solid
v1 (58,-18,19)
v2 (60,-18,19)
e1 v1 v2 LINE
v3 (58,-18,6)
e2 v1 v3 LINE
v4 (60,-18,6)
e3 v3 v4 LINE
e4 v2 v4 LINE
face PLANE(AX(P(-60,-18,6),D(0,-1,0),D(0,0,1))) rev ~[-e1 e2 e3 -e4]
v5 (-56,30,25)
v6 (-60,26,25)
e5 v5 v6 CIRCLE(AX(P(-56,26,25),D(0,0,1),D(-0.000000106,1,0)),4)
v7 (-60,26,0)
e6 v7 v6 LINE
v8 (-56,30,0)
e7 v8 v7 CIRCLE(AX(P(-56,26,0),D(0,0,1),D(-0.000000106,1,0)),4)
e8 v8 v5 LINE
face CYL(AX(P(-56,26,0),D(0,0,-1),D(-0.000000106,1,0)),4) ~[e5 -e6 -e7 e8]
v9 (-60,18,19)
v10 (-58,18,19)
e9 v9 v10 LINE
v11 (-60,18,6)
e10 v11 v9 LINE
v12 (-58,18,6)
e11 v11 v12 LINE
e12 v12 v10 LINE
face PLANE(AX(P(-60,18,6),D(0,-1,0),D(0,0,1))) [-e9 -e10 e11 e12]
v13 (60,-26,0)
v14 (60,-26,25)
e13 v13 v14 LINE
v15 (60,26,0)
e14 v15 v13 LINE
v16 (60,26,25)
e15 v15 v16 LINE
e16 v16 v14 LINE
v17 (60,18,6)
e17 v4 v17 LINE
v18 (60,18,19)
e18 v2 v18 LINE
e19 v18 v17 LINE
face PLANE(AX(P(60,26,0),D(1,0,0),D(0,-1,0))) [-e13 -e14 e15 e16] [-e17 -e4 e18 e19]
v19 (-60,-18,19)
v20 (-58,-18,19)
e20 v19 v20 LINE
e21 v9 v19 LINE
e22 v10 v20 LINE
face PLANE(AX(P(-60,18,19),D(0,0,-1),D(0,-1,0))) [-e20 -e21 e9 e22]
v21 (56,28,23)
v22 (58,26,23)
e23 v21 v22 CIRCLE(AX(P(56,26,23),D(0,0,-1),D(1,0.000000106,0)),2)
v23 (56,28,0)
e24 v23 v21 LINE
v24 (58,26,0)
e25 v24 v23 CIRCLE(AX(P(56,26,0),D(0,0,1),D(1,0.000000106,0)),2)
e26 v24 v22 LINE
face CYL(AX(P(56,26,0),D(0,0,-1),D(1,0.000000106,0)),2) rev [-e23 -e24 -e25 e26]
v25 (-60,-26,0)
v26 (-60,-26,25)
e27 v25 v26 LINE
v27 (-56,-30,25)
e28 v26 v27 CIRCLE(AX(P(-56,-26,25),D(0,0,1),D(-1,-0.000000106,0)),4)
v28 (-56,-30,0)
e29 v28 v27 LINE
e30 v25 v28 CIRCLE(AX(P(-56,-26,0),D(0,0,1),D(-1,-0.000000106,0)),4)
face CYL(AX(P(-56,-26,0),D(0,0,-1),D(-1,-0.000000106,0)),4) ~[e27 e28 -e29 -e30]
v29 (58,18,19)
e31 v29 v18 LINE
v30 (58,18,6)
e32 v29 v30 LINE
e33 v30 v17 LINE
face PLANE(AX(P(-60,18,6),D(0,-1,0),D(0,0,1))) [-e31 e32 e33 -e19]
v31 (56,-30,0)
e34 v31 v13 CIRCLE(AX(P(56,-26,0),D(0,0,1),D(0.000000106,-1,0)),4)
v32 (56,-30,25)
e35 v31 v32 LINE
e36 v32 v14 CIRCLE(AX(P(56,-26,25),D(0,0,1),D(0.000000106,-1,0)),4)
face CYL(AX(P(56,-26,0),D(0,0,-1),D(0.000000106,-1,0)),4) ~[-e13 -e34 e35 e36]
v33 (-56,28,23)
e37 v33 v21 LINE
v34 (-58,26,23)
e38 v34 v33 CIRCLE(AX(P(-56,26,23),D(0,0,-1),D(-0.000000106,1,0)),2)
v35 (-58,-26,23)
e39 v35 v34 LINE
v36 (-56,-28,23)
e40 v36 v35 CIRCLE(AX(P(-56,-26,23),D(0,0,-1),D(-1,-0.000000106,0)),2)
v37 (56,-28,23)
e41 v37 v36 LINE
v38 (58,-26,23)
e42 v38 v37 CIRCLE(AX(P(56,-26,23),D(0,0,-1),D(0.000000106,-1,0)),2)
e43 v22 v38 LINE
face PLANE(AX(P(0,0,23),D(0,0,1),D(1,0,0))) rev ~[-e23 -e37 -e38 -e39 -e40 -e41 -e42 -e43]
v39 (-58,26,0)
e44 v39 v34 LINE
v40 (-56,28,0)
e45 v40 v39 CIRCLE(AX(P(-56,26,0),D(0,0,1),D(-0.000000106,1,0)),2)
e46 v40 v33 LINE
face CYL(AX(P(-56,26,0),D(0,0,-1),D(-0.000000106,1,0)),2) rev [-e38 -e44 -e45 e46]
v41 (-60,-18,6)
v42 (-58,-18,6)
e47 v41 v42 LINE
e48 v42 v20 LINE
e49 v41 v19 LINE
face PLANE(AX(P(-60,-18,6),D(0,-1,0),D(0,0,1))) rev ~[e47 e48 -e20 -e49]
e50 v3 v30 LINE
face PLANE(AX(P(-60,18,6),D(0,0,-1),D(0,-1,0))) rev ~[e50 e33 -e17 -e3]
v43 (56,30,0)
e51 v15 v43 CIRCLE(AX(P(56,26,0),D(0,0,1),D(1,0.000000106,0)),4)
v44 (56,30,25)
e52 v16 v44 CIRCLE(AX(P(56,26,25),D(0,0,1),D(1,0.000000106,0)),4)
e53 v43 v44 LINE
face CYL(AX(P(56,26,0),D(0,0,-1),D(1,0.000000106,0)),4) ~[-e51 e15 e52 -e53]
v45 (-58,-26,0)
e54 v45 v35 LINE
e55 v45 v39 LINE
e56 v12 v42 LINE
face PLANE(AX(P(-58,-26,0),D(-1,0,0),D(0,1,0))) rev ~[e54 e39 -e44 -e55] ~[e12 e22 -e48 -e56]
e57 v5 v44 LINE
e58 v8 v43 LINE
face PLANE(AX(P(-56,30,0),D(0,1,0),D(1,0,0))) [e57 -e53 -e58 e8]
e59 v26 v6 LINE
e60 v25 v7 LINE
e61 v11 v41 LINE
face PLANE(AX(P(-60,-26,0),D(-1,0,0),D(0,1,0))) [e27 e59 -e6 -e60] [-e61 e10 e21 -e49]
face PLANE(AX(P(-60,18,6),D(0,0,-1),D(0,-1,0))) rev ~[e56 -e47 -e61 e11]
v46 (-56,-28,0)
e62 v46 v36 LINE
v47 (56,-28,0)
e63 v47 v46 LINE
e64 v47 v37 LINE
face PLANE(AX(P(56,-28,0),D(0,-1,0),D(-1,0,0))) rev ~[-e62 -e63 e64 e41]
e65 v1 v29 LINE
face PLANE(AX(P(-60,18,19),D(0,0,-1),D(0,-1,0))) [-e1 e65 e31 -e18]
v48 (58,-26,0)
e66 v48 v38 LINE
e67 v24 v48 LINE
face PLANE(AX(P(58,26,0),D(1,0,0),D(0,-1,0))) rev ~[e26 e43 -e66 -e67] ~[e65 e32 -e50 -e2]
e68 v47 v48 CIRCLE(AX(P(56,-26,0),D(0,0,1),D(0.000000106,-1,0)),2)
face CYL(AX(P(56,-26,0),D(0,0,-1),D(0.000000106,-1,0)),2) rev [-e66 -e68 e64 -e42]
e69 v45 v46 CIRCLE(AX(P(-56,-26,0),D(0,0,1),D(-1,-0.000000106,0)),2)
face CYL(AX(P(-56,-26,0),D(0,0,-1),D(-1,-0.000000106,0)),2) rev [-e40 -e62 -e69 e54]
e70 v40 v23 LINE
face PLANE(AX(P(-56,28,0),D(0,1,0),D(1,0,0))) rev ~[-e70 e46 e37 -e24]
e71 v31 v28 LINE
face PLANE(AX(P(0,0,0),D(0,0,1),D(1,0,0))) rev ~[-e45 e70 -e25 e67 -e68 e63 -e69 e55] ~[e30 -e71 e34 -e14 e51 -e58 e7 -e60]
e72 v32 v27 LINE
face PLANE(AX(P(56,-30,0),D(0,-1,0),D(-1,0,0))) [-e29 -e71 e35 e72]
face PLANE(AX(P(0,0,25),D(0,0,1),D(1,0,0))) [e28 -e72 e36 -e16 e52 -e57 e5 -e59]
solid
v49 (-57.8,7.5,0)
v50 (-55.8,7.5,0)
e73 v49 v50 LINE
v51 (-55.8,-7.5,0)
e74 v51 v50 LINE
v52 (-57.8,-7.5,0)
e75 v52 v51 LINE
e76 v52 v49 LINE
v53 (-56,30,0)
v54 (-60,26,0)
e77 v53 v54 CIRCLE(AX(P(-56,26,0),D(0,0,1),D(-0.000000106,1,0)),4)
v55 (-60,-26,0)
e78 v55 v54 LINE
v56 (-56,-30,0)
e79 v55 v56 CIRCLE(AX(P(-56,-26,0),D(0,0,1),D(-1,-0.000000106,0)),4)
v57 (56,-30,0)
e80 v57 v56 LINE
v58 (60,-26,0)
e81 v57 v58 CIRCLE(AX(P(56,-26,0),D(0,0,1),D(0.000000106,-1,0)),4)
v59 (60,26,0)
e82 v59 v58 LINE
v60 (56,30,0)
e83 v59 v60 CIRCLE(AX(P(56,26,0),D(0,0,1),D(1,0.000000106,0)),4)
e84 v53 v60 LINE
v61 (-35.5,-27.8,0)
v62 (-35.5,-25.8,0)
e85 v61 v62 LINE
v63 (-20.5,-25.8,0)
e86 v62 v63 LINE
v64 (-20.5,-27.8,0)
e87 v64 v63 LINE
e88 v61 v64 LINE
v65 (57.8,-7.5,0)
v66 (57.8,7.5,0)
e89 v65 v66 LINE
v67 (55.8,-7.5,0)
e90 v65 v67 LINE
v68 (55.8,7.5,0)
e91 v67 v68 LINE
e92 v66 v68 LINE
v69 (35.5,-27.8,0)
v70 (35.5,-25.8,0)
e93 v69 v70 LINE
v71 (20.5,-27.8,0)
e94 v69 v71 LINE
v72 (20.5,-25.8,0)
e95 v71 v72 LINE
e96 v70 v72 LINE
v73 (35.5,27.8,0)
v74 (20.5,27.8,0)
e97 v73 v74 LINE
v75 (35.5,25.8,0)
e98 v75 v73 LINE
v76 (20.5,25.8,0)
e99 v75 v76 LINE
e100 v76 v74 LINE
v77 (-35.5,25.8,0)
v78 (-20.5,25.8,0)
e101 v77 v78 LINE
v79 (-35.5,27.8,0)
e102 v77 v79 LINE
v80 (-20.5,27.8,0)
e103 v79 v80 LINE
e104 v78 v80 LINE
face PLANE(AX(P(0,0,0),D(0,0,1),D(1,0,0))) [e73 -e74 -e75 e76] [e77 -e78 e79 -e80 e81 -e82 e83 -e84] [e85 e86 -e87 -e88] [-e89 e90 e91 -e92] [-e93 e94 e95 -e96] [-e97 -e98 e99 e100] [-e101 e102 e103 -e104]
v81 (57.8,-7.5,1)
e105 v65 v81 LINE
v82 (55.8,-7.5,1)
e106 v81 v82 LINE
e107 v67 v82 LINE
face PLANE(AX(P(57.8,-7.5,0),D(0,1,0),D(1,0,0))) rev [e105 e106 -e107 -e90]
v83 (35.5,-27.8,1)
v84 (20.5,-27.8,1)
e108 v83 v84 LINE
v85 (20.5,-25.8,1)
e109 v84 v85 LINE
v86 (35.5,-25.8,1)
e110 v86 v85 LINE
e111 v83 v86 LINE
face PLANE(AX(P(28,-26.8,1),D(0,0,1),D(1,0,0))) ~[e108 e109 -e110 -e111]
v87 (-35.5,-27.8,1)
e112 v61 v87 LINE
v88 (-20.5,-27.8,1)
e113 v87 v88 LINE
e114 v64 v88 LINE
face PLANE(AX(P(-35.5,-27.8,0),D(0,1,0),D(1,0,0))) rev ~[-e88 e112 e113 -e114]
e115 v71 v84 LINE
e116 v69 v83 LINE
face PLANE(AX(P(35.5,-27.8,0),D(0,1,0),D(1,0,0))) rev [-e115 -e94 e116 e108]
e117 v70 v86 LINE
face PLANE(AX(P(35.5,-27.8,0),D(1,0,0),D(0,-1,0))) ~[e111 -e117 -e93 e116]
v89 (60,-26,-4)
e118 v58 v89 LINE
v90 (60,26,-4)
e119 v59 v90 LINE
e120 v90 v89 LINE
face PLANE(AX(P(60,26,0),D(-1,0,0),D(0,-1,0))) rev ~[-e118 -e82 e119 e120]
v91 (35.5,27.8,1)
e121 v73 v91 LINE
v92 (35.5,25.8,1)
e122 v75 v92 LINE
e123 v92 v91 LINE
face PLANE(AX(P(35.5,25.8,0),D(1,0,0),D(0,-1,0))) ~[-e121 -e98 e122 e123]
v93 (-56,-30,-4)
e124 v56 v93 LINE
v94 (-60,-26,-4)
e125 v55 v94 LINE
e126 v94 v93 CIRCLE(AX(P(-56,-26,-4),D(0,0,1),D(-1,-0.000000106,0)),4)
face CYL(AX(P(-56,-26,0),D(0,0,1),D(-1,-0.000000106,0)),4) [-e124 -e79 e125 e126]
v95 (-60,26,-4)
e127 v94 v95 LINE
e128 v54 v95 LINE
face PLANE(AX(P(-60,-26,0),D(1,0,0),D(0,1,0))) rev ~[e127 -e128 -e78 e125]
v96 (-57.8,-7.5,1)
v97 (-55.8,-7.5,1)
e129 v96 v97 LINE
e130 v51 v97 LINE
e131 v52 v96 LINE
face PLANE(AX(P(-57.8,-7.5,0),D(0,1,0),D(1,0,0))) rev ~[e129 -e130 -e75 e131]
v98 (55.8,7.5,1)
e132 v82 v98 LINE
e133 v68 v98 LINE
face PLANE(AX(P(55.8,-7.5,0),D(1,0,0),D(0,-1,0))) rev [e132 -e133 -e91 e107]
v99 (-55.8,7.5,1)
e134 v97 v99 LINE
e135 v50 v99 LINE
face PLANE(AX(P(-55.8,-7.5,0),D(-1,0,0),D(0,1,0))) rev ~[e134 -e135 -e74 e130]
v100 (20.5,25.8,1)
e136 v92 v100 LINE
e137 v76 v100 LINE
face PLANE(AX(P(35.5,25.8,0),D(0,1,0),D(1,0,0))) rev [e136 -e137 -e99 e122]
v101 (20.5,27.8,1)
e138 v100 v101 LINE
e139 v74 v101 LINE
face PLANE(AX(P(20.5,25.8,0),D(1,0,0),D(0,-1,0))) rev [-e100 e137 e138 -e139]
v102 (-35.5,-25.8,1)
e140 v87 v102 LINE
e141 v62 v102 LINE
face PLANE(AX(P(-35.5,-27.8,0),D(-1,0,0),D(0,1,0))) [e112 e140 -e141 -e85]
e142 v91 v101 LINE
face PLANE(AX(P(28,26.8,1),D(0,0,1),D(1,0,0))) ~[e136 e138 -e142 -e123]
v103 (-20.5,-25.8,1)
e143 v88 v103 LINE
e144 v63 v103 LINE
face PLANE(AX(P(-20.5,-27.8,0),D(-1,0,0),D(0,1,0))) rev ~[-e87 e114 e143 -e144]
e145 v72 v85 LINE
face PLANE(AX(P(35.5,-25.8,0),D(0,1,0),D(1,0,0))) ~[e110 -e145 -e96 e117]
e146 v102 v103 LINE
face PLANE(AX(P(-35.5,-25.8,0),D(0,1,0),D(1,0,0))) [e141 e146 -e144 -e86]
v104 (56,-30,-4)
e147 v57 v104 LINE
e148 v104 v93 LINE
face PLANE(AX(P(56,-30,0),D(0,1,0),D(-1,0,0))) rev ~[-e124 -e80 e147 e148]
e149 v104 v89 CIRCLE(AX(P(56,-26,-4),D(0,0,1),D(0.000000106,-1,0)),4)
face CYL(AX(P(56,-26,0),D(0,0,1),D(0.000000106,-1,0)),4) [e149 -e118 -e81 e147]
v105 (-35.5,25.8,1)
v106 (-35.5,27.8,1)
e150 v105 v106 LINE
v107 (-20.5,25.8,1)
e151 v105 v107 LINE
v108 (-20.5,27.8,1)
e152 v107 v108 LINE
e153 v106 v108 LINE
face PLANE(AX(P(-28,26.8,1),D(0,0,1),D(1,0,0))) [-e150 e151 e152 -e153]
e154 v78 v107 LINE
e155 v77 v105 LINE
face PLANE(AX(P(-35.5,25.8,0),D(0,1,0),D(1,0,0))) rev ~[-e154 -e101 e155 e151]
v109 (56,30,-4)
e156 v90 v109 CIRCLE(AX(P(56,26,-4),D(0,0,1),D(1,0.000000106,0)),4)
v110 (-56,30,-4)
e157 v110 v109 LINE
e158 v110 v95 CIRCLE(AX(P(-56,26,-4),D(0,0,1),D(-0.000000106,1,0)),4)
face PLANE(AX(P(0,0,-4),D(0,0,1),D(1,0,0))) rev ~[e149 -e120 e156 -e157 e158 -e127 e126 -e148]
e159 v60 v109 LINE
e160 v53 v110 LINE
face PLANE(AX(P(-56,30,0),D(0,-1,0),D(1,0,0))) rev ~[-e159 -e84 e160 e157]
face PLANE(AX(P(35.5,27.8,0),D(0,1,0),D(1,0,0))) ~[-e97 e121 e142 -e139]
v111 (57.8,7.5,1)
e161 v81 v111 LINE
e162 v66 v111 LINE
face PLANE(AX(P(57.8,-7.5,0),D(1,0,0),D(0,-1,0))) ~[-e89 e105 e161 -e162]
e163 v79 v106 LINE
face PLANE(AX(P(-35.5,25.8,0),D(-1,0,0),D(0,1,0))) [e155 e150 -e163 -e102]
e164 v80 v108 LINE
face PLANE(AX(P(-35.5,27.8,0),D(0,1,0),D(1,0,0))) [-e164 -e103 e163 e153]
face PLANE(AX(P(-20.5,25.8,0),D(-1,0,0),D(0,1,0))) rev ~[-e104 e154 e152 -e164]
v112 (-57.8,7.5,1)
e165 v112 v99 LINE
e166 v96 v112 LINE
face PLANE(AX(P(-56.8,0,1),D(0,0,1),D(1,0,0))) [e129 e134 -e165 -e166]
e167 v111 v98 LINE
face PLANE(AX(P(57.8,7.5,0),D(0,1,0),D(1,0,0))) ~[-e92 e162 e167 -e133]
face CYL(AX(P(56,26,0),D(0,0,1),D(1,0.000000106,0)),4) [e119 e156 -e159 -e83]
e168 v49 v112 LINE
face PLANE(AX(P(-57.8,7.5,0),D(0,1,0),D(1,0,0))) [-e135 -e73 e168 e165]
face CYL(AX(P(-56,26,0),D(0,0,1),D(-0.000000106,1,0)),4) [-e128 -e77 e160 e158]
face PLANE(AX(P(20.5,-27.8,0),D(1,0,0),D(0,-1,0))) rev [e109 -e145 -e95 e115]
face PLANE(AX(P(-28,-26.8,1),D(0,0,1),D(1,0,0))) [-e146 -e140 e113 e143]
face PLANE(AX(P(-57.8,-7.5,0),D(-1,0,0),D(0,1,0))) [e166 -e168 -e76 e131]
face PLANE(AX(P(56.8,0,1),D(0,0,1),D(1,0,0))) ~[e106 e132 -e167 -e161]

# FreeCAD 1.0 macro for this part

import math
import FreeCAD as App
import Part
import Sketcher
from FreeCAD import Vector
Q = App.Units.Quantity


def faces_at(feature, points):
    """Names of the faces that lie closest to the given points."""
    faces = feature.Shape.Faces
    near = lambda p: min(range(len(faces)), key=lambda i: faces[i].distToShape(Part.Vertex(*p))[0])
    return sorted({f"Face{near(p) + 1}" for p in points})


def add_polygon(sketch, points):
    """Adds a closed chain of lines whose ends are joined by coincident constraints."""
    first, n = sketch.GeometryCount, len(points)
    for a, b in zip(points, points[1:] + points[:1]):
        sketch.addGeometry(Part.LineSegment(App.Vector(*a, 0), App.Vector(*b, 0)), False)
    for i in range(n):
        sketch.addConstraint(Sketcher.Constraint("Coincident", first + i, 2, first + (i + 1) % n, 1))

doc = App.newDocument("Part")
body = doc.addObject("PartDesign::Body", "Body")

# Sketch on XY plane
sketch1 = body.newObject("Sketcher::SketchObject", "Sketch")
sketch1.AttachmentSupport = (doc.getObject("XY_Plane"), [""])
sketch1.MapMode = "FlatFace"
sketch1.addGeometry([
    Part.ArcOfCircle(Part.Circle(Vector(-56, 26, 0), Vector(0, 0, 1), 4), math.radians(90), math.radians(180)),  # 0
    Part.LineSegment(Vector(-60, 26, 0), Vector(-60, -26, 0)),  # 1
    Part.ArcOfCircle(Part.Circle(Vector(-56, -26, 0), Vector(0, 0, 1), 4), math.radians(-180), math.radians(-90)),  # 2
    Part.LineSegment(Vector(-56, -30, 0), Vector(56, -30, 0)),  # 3
    Part.ArcOfCircle(Part.Circle(Vector(56, -26, 0), Vector(0, 0, 1), 4), math.radians(-90), math.radians(0)),  # 4
    Part.LineSegment(Vector(60, -26, 0), Vector(60, 26, 0)),  # 5
    Part.ArcOfCircle(Part.Circle(Vector(56, 26, 0), Vector(0, 0, 1), 4), math.radians(0), math.radians(90)),  # 6
    Part.LineSegment(Vector(56, 30, 0), Vector(-56, 30, 0)),  # 7
], False)
sketch1.addConstraint([
    Sketcher.Constraint("Tangent", 0, 2, 1, 1),
    Sketcher.Constraint("Tangent", 1, 2, 2, 1),
    Sketcher.Constraint("Tangent", 2, 2, 3, 1),
    Sketcher.Constraint("Tangent", 3, 2, 4, 1),
    Sketcher.Constraint("Tangent", 4, 2, 5, 1),
    Sketcher.Constraint("Tangent", 5, 2, 6, 1),
    Sketcher.Constraint("Tangent", 6, 2, 7, 1),
    Sketcher.Constraint("Tangent", 7, 2, 0, 1),
    Sketcher.Constraint("Vertical", 1),
    Sketcher.Constraint("Horizontal", 3),
    Sketcher.Constraint("Vertical", 5),
    Sketcher.Constraint("Horizontal", 7),
    Sketcher.Constraint("Equal", 0, 2),
    Sketcher.Constraint("Equal", 2, 4),
    Sketcher.Constraint("Equal", 4, 6),
    Sketcher.Constraint("Symmetric", 0, 3, 4, 3, -1, 1),
    Sketcher.Constraint("Radius", 0, Q("4 mm")),
    Sketcher.Constraint("DistanceX", 3, 1, 3, 2, Q("112 mm")),
    Sketcher.Constraint("DistanceY", 1, 2, 1, 1, Q("52 mm")),
])
pad1 = body.newObject("PartDesign::Pad", "Pad")
pad1.Profile = sketch1
pad1.Length = 25
doc.recompute()

thickness = body.newObject("PartDesign::Thickness", "Thickness")
thickness.Base = (pad1, faces_at(pad1, [(0, 0, 0)]))
thickness.Value = 2
thickness.Reversed = True
thickness.Join = "Arc"

# Sketch on YZ plane
sketch2 = body.newObject("Sketcher::SketchObject", "Sketch001")
sketch2.AttachmentSupport = (doc.getObject("YZ_Plane"), [""])
sketch2.MapMode = "FlatFace"
sketch2.AttachmentOffset = App.Placement(Vector(0, 0, -60), App.Rotation())
add_polygon(sketch2, [(18, 19), (18, 6), (-18, 6), (-18, 19)])  # lines 0-3
sketch2.addConstraint([
    Sketcher.Constraint("Vertical", 0),
    Sketcher.Constraint("Horizontal", 1),
    Sketcher.Constraint("Vertical", 2),
    Sketcher.Constraint("Horizontal", 3),
    Sketcher.Constraint("DistanceX", 1, 2, 1, 1, Q("36 mm")),
    Sketcher.Constraint("DistanceY", 0, 2, 0, 1, Q("13 mm")),
    Sketcher.Constraint("DistanceX", -1, 1, 0, 2, Q("18 mm")),
    Sketcher.Constraint("DistanceY", -1, 1, 0, 2, Q("6 mm")),
])
pocket1 = body.newObject("PartDesign::Pocket", "Pocket")
pocket1.Profile = sketch2
pocket1.Type = "ThroughAll"
pocket1.Reversed = True
body2 = doc.addObject("PartDesign::Body", "Body001")

# Sketch on XY plane
sketch3 = body2.newObject("Sketcher::SketchObject", "Sketch002")
sketch3.AttachmentSupport = (doc.getObject("XY_Plane001"), [""])
sketch3.MapMode = "FlatFace"
sketch3.addGeometry([
    Part.ArcOfCircle(Part.Circle(Vector(-56, 26, 0), Vector(0, 0, 1), 4), math.radians(90), math.radians(180)),  # 0
    Part.LineSegment(Vector(-60, 26, 0), Vector(-60, -26, 0)),  # 1
    Part.ArcOfCircle(Part.Circle(Vector(-56, -26, 0), Vector(0, 0, 1), 4), math.radians(-180), math.radians(-90)),  # 2
    Part.LineSegment(Vector(-56, -30, 0), Vector(56, -30, 0)),  # 3
    Part.ArcOfCircle(Part.Circle(Vector(56, -26, 0), Vector(0, 0, 1), 4), math.radians(-90), math.radians(0)),  # 4
    Part.LineSegment(Vector(60, -26, 0), Vector(60, 26, 0)),  # 5
    Part.ArcOfCircle(Part.Circle(Vector(56, 26, 0), Vector(0, 0, 1), 4), math.radians(0), math.radians(90)),  # 6
    Part.LineSegment(Vector(56, 30, 0), Vector(-56, 30, 0)),  # 7
], False)
sketch3.addConstraint([
    Sketcher.Constraint("Tangent", 0, 2, 1, 1),
    Sketcher.Constraint("Tangent", 1, 2, 2, 1),
    Sketcher.Constraint("Tangent", 2, 2, 3, 1),
    Sketcher.Constraint("Tangent", 3, 2, 4, 1),
    Sketcher.Constraint("Tangent", 4, 2, 5, 1),
    Sketcher.Constraint("Tangent", 5, 2, 6, 1),
    Sketcher.Constraint("Tangent", 6, 2, 7, 1),
    Sketcher.Constraint("Tangent", 7, 2, 0, 1),
    Sketcher.Constraint("Vertical", 1),
    Sketcher.Constraint("Horizontal", 3),
    Sketcher.Constraint("Vertical", 5),
    Sketcher.Constraint("Horizontal", 7),
    Sketcher.Constraint("Equal", 0, 2),
    Sketcher.Constraint("Equal", 2, 4),
    Sketcher.Constraint("Equal", 4, 6),
    Sketcher.Constraint("Symmetric", 0, 3, 4, 3, -1, 1),
    Sketcher.Constraint("Radius", 0, Q("4 mm")),
    Sketcher.Constraint("DistanceX", 3, 1, 3, 2, Q("112 mm")),
    Sketcher.Constraint("DistanceY", 1, 2, 1, 1, Q("52 mm")),
])
pad2 = body2.newObject("PartDesign::Pad", "Pad001")
pad2.Profile = sketch3
pad2.Length = 4
pad2.Reversed = True

# Sketch on XY plane
sketch4 = body2.newObject("Sketcher::SketchObject", "Sketch003")
sketch4.AttachmentSupport = (doc.getObject("XY_Plane001"), [""])
sketch4.MapMode = "FlatFace"
add_polygon(sketch4, [(-35.5, 27.8), (-35.5, 25.8), (-20.5, 25.8), (-20.5, 27.8)])  # lines 0-3
add_polygon(sketch4, [(-57.8, 7.5), (-57.8, -7.5), (-55.8, -7.5), (-55.8, 7.5)])  # lines 4-7
add_polygon(sketch4, [(-35.5, -25.8), (-35.5, -27.8), (-20.5, -27.8), (-20.5, -25.8)])  # lines 8-11
sketch4.addConstraint([
    Sketcher.Constraint("Vertical", 0),
    Sketcher.Constraint("Horizontal", 1),
    Sketcher.Constraint("Vertical", 2),
    Sketcher.Constraint("Horizontal", 3),
    Sketcher.Constraint("Vertical", 4),
    Sketcher.Constraint("Horizontal", 5),
    Sketcher.Constraint("Vertical", 6),
    Sketcher.Constraint("Horizontal", 7),
    Sketcher.Constraint("Vertical", 8),
    Sketcher.Constraint("Horizontal", 9),
    Sketcher.Constraint("Vertical", 10),
    Sketcher.Constraint("Horizontal", 11),
    Sketcher.Constraint("Symmetric", 3, 2, 8, 2, -1),
    Sketcher.Constraint("Symmetric", 1, 2, 10, 2, -1),
    Sketcher.Constraint("Equal", 7, 0),
    Sketcher.Constraint("Equal", 11, 4),
    Sketcher.Constraint("DistanceX", 1, 1, 1, 2, Q("15 mm")),
    Sketcher.Constraint("DistanceX", 5, 1, 5, 2, Q("2 mm")),
    Sketcher.Constraint("DistanceX", 0, 2, -1, 1, Q("35.5 mm")),
    Sketcher.Constraint("DistanceY", -1, 1, 0, 2, Q("25.8 mm")),
    Sketcher.Constraint("DistanceX", 4, 2, -1, 1, Q("57.8 mm")),
    Sketcher.Constraint("DistanceY", 4, 2, -1, 1, Q("7.5 mm")),
])
pad3 = body2.newObject("PartDesign::Pad", "Pad002")
pad3.Profile = sketch4
pad3.Length = 1
doc.recompute()

mirrored = body2.newObject("PartDesign::Mirrored", "Mirrored")
mirrored.Originals = [pad3]
mirrored.MirrorPlane = (doc.getObject("YZ_Plane001"), [""])
body2.Tip = mirrored

doc.recompute()
